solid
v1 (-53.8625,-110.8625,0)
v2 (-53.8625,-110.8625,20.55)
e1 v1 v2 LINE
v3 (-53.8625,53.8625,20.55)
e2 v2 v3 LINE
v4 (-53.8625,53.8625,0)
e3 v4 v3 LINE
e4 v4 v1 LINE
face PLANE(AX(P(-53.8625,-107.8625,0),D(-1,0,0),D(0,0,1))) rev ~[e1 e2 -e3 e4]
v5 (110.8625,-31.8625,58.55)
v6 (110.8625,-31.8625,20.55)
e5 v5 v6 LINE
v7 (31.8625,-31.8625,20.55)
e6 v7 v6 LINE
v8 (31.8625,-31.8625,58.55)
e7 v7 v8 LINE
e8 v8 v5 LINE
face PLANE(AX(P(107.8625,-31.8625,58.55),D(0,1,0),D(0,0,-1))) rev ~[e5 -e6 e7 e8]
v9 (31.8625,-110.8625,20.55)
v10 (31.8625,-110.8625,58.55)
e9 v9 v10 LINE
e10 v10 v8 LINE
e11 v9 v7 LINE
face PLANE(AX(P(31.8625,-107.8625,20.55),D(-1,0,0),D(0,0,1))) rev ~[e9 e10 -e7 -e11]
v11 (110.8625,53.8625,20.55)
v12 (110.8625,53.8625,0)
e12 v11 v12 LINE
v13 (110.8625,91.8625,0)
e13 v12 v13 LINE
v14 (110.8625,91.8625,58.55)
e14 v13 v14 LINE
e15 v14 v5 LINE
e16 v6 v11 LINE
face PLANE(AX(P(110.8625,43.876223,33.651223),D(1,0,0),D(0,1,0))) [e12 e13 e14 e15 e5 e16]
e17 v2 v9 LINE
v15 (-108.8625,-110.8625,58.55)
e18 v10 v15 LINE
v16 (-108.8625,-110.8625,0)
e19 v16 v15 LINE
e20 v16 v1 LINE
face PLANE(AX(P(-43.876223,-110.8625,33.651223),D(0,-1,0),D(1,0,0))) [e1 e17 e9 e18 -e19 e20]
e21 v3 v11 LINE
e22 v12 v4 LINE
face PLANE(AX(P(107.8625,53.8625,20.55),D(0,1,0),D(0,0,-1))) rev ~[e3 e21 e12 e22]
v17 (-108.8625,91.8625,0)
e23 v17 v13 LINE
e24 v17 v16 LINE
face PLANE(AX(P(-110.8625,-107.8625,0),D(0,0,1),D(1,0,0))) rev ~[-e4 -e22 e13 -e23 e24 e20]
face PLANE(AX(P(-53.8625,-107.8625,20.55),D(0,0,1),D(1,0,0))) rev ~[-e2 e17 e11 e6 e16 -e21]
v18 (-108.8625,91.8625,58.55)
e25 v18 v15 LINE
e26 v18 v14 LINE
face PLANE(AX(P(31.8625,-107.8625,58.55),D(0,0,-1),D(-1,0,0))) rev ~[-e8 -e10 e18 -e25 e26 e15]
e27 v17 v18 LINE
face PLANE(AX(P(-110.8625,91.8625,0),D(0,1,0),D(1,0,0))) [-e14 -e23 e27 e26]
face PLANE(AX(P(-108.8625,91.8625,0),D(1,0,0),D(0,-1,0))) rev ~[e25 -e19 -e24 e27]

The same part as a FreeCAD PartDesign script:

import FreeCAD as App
import Part
import Sketcher
Q = App.Units.Quantity

doc = App.newDocument("Part")
body = doc.addObject("PartDesign::Body", "Body")

sketch1 = body.newObject("Sketcher::SketchObject", "Sketch")
sketch1.AttachmentSupport = (doc.getObject("XY_Plane"), [""])
sketch1.MapMode = "FlatFace"
sketch1.addGeometry(Part.LineSegment(App.Vector(-53.8625, 53.8625, 0), App.Vector(107.8625, 53.8625, 0)), False)
sketch1.addGeometry(Part.LineSegment(App.Vector(107.8625, 53.8625, 0), App.Vector(107.8625, 107.8625, 0)), False)
sketch1.addGeometry(Part.LineSegment(App.Vector(107.8625, 107.8625, 0), App.Vector(-107.8625, 107.8625, 0)), False)
sketch1.addGeometry(Part.LineSegment(App.Vector(-107.8625, 107.8625, 0), App.Vector(-107.8625, -107.8625, 0)), False)
sketch1.addGeometry(Part.LineSegment(App.Vector(-107.8625, -107.8625, 0), App.Vector(-53.8625, -107.8625, 0)), False)
sketch1.addGeometry(Part.LineSegment(App.Vector(-53.8625, -107.8625, 0), App.Vector(-53.8625, 53.8625, 0)), False)
sketch1.addConstraint(Sketcher.Constraint("Coincident", 0, 2, 1, 1))
sketch1.addConstraint(Sketcher.Constraint("Coincident", 1, 2, 2, 1))
sketch1.addConstraint(Sketcher.Constraint("Coincident", 2, 2, 3, 1))
sketch1.addConstraint(Sketcher.Constraint("Coincident", 3, 2, 4, 1))
sketch1.addConstraint(Sketcher.Constraint("Coincident", 4, 2, 5, 1))
sketch1.addConstraint(Sketcher.Constraint("Coincident", 5, 2, 0, 1))
sketch1.addConstraint(Sketcher.Constraint("Horizontal", 0))
sketch1.addConstraint(Sketcher.Constraint("Vertical", 1))
sketch1.addConstraint(Sketcher.Constraint("Horizontal", 2))
sketch1.addConstraint(Sketcher.Constraint("Vertical", 3))
sketch1.addConstraint(Sketcher.Constraint("Horizontal", 4))
sketch1.addConstraint(Sketcher.Constraint("Vertical", 5))
sketch1.addConstraint(Sketcher.Constraint("Symmetric", 1, 2, 3, 2, -1, 1))
sketch1.addConstraint(Sketcher.Constraint("Equal", 4, 1))
sketch1.addConstraint(Sketcher.Constraint("Equal", 2, 3))
sketch1.addConstraint(Sketcher.Constraint("DistanceX", 4, 1, 4, 2, Q("54 mm")))
sketch1.addConstraint(Sketcher.Constraint("DistanceX", 0, 1, 0, 2, Q("161.725 mm")))
pad1 = body.newObject("PartDesign::Pad", "Pad")
pad1.Profile = sketch1
pad1.Length = 20.55

sketch2 = body.newObject("Sketcher::SketchObject", "Sketch001")
sketch2.AttachmentSupport = (doc.getObject("XY_Plane"), [""])
sketch2.MapMode = "FlatFace"
sketch2.AttachmentOffset = App.Placement(App.Vector(0, 0, 20.55), App.Rotation())
sketch2.addGeometry(Part.LineSegment(App.Vector(-107.8625, 107.8625, 0), App.Vector(-107.8625, -107.8625, 0)), False)
sketch2.addGeometry(Part.LineSegment(App.Vector(-107.8625, -107.8625, 0), App.Vector(107.8625, -107.8625, 0)), False)
sketch2.addGeometry(Part.LineSegment(App.Vector(107.8625, -107.8625, 0), App.Vector(107.8625, 107.8625, 0)), False)
sketch2.addGeometry(Part.LineSegment(App.Vector(107.8625, 107.8625, 0), App.Vector(-107.8625, 107.8625, 0)), False)
sketch2.addConstraint(Sketcher.Constraint("Coincident", 0, 2, 1, 1))
sketch2.addConstraint(Sketcher.Constraint("Coincident", 1, 2, 2, 1))
sketch2.addConstraint(Sketcher.Constraint("Coincident", 2, 2, 3, 1))
sketch2.addConstraint(Sketcher.Constraint("Coincident", 3, 2, 0, 1))
sketch2.addConstraint(Sketcher.Constraint("Vertical", 0))
sketch2.addConstraint(Sketcher.Constraint("Horizontal", 1))
sketch2.addConstraint(Sketcher.Constraint("Vertical", 2))
sketch2.addConstraint(Sketcher.Constraint("Horizontal", 3))
sketch2.addConstraint(Sketcher.Constraint("Symmetric", 0, 2, 2, 2, -1, 1))
sketch2.addConstraint(Sketcher.Constraint("Equal", 3, 0))
sketch2.addConstraint(Sketcher.Constraint("DistanceX", 1, 1, 1, 2, Q("215.725 mm")))
pad2 = body.newObject("PartDesign::Pad", "Pad001")
pad2.Profile = sketch2
pad2.Length = 38

sketch3 = body.newObject("Sketcher::SketchObject", "Sketch002")
sketch3.AttachmentSupport = (doc.getObject("XY_Plane"), [""])
sketch3.MapMode = "FlatFace"
sketch3.AttachmentOffset = App.Placement(App.Vector(0, 0, 58.55), App.Rotation())
sketch3.addGeometry(Part.LineSegment(App.Vector(-110.8625, -107.8625, 0), App.Vector(-107.8625, -107.8625, 0)), False)
sketch3.addGeometry(Part.LineSegment(App.Vector(-107.8625, -107.8625, 0), App.Vector(-107.8625, 107.8625, 0)), False)
sketch3.addGeometry(Part.LineSegment(App.Vector(-107.8625, 107.8625, 0), App.Vector(107.8625, 107.8625, 0)), False)
sketch3.addGeometry(Part.LineSegment(App.Vector(107.8625, 107.8625, 0), App.Vector(107.8625, 110.8625, 0)), False)
sketch3.addGeometry(Part.LineSegment(App.Vector(107.8625, 110.8625, 0), App.Vector(-110.8625, 110.8625, 0)), False)
sketch3.addGeometry(Part.LineSegment(App.Vector(-110.8625, 110.8625, 0), App.Vector(-110.8625, -107.8625, 0)), False)
sketch3.addConstraint(Sketcher.Constraint("Coincident", 0, 2, 1, 1))
sketch3.addConstraint(Sketcher.Constraint("Coincident", 1, 2, 2, 1))
sketch3.addConstraint(Sketcher.Constraint("Coincident", 2, 2, 3, 1))
sketch3.addConstraint(Sketcher.Constraint("Coincident", 3, 2, 4, 1))
sketch3.addConstraint(Sketcher.Constraint("Coincident", 4, 2, 5, 1))
sketch3.addConstraint(Sketcher.Constraint("Coincident", 5, 2, 0, 1))
sketch3.addConstraint(Sketcher.Constraint("Horizontal", 0))
sketch3.addConstraint(Sketcher.Constraint("Vertical", 1))
sketch3.addConstraint(Sketcher.Constraint("Horizontal", 2))
sketch3.addConstraint(Sketcher.Constraint("Vertical", 3))
sketch3.addConstraint(Sketcher.Constraint("Horizontal", 4))
sketch3.addConstraint(Sketcher.Constraint("Vertical", 5))
sketch3.addConstraint(Sketcher.Constraint("Symmetric", 0, 2, 2, 2, -1, 1))
sketch3.addConstraint(Sketcher.Constraint("Equal", 2, 1))
sketch3.addConstraint(Sketcher.Constraint("Equal", 0, 3))
sketch3.addConstraint(Sketcher.Constraint("DistanceX", 0, 1, 0, 2, Q("3 mm")))
sketch3.addConstraint(Sketcher.Constraint("DistanceX", 2, 1, 2, 2, Q("215.725 mm")))
pad3 = body.newObject("PartDesign::Pad", "Pad002")
pad3.Profile = sketch3
pad3.Type = "UpToLast"
pad3.Reversed = True

sketch4 = body.newObject("Sketcher::SketchObject", "Sketch003")
sketch4.AttachmentSupport = (doc.getObject("XY_Plane"), [""])
sketch4.MapMode = "FlatFace"
sketch4.AttachmentOffset = App.Placement(App.Vector(0, 0, 20.55), App.Rotation())
sketch4.addGeometry(Part.LineSegment(App.Vector(31.8625, -107.8625, 0), App.Vector(31.8625, -31.8625, 0)), False)
sketch4.addGeometry(Part.LineSegment(App.Vector(31.8625, -31.8625, 0), App.Vector(107.8625, -31.8625, 0)), False)
sketch4.addGeometry(Part.LineSegment(App.Vector(107.8625, -31.8625, 0), App.Vector(107.8625, -107.8625, 0)), False)
sketch4.addGeometry(Part.LineSegment(App.Vector(107.8625, -107.8625, 0), App.Vector(31.8625, -107.8625, 0)), False)
sketch4.addConstraint(Sketcher.Constraint("Coincident", 0, 2, 1, 1))
sketch4.addConstraint(Sketcher.Constraint("Coincident", 1, 2, 2, 1))
sketch4.addConstraint(Sketcher.Constraint("Coincident", 2, 2, 3, 1))
sketch4.addConstraint(Sketcher.Constraint("Coincident", 3, 2, 0, 1))
sketch4.addConstraint(Sketcher.Constraint("Vertical", 0))
sketch4.addConstraint(Sketcher.Constraint("Horizontal", 1))
sketch4.addConstraint(Sketcher.Constraint("Vertical", 2))
sketch4.addConstraint(Sketcher.Constraint("Horizontal", 3))
sketch4.addConstraint(Sketcher.Constraint("Equal", 3, 0))
sketch4.addConstraint(Sketcher.Constraint("DistanceX", 1, 1, 1, 2, Q("76 mm")))
sketch4.addConstraint(Sketcher.Constraint("DistanceX", -1, 1, 0, 2, Q("31.8625 mm")))
sketch4.addConstraint(Sketcher.Constraint("DistanceY", 0, 2, -1, 1, Q("31.8625 mm")))
pocket1 = body.newObject("PartDesign::Pocket", "Pocket")
pocket1.Profile = sketch4
pocket1.Type = "ThroughAll"
pocket1.Reversed = True

sketch5 = body.newObject("Sketcher::SketchObject", "Sketch004")
sketch5.AttachmentSupport = (doc.getObject("YZ_Plane"), [""])
sketch5.MapMode = "FlatFace"
sketch5.AttachmentOffset = App.Placement(App.Vector(0, 0, 107.8625), App.Rotation())
sketch5.addGeometry(Part.LineSegment(App.Vector(110.8625, 58.55, 0), App.Vector(-31.8625, 58.55, 0)), False)
sketch5.addGeometry(Part.LineSegment(App.Vector(-31.8625, 58.55, 0), App.Vector(-31.8625, 20.55, 0)), False)
sketch5.addGeometry(Part.LineSegment(App.Vector(-31.8625, 20.55, 0), App.Vector(53.8625, 20.55, 0)), False)
sketch5.addGeometry(Part.LineSegment(App.Vector(53.8625, 20.55, 0), App.Vector(53.8625, 0, 0)), False)
sketch5.addGeometry(Part.LineSegment(App.Vector(53.8625, 0, 0), App.Vector(110.8625, 0, 0)), False)
sketch5.addGeometry(Part.LineSegment(App.Vector(110.8625, 0, 0), App.Vector(110.8625, 58.55, 0)), False)
sketch5.addConstraint(Sketcher.Constraint("Coincident", 0, 2, 1, 1))
sketch5.addConstraint(Sketcher.Constraint("Coincident", 1, 2, 2, 1))
sketch5.addConstraint(Sketcher.Constraint("Coincident", 2, 2, 3, 1))
sketch5.addConstraint(Sketcher.Constraint("Coincident", 3, 2, 4, 1))
sketch5.addConstraint(Sketcher.Constraint("Coincident", 4, 2, 5, 1))
sketch5.addConstraint(Sketcher.Constraint("Coincident", 5, 2, 0, 1))
sketch5.addConstraint(Sketcher.Constraint("Horizontal", 0))
sketch5.addConstraint(Sketcher.Constraint("Vertical", 1))
sketch5.addConstraint(Sketcher.Constraint("Horizontal", 2))
sketch5.addConstraint(Sketcher.Constraint("Vertical", 3))
sketch5.addConstraint(Sketcher.Constraint("Horizontal", 4))
sketch5.addConstraint(Sketcher.Constraint("Vertical", 5))
sketch5.addConstraint(Sketcher.Constraint("PointOnObject", 3, 2, -1))
sketch5.addConstraint(Sketcher.Constraint("DistanceX", 4, 1, 4, 2, Q("57 mm")))
sketch5.addConstraint(Sketcher.Constraint("DistanceY", 1, 2, 1, 1, Q("38 mm")))
sketch5.addConstraint(Sketcher.Constraint("DistanceY", 3, 2, 3, 1, Q("20.55 mm")))
sketch5.addConstraint(Sketcher.Constraint("DistanceX", 0, 2, 0, 1, Q("142.725 mm")))
sketch5.addConstraint(Sketcher.Constraint("DistanceX", 0, 2, -1, 1, Q("31.8625 mm")))
pad4 = body.newObject("PartDesign::Pad", "Pad003")
pad4.Profile = sketch5
pad4.Length = 3

sketch6 = body.newObject("Sketcher::SketchObject", "Sketch005")
sketch6.AttachmentSupport = (doc.getObject("XZ_Plane"), [""])
sketch6.MapMode = "FlatFace"
sketch6.AttachmentOffset = App.Placement(App.Vector(0, 0, 107.8625), App.Rotation())
sketch6.addGeometry(Part.LineSegment(App.Vector(31.8625, 58.55, 0), App.Vector(-110.8625, 58.55, 0)), False)
sketch6.addGeometry(Part.LineSegment(App.Vector(-110.8625, 58.55, 0), App.Vector(-110.8625, 0, 0)), False)
sketch6.addGeometry(Part.LineSegment(App.Vector(-110.8625, 0, 0), App.Vector(-53.8625, 0, 0)), False)
sketch6.addGeometry(Part.LineSegment(App.Vector(-53.8625, 0, 0), App.Vector(-53.8625, 20.55, 0)), False)
sketch6.addGeometry(Part.LineSegment(App.Vector(-53.8625, 20.55, 0), App.Vector(31.8625, 20.55, 0)), False)
sketch6.addGeometry(Part.LineSegment(App.Vector(31.8625, 20.55, 0), App.Vector(31.8625, 58.55, 0)), False)
sketch6.addConstraint(Sketcher.Constraint("Coincident", 0, 2, 1, 1))
sketch6.addConstraint(Sketcher.Constraint("Coincident", 1, 2, 2, 1))
sketch6.addConstraint(Sketcher.Constraint("Coincident", 2, 2, 3, 1))
sketch6.addConstraint(Sketcher.Constraint("Coincident", 3, 2, 4, 1))
sketch6.addConstraint(Sketcher.Constraint("Coincident", 4, 2, 5, 1))
sketch6.addConstraint(Sketcher.Constraint("Coincident", 5, 2, 0, 1))
sketch6.addConstraint(Sketcher.Constraint("Horizontal", 0))
sketch6.addConstraint(Sketcher.Constraint("Vertical", 1))
sketch6.addConstraint(Sketcher.Constraint("Horizontal", 2))
sketch6.addConstraint(Sketcher.Constraint("Vertical", 3))
sketch6.addConstraint(Sketcher.Constraint("Horizontal", 4))
sketch6.addConstraint(Sketcher.Constraint("Vertical", 5))
sketch6.addConstraint(Sketcher.Constraint("PointOnObject", 1, 2, -1))
sketch6.addConstraint(Sketcher.Constraint("DistanceX", 2, 1, 2, 2, Q("57 mm")))
sketch6.addConstraint(Sketcher.Constraint("DistanceY", 5, 1, 5, 2, Q("38 mm")))
sketch6.addConstraint(Sketcher.Constraint("DistanceY", 1, 2, 1, 1, Q("58.55 mm")))
sketch6.addConstraint(Sketcher.Constraint("DistanceX", 0, 2, 0, 1, Q("142.725 mm")))
sketch6.addConstraint(Sketcher.Constraint("DistanceX", 0, 2, -1, 1, Q("110.8625 mm")))
pad5 = body.newObject("PartDesign::Pad", "Pad004")
pad5.Profile = sketch6
pad5.Length = 3

sketch7 = body.newObject("Sketcher::SketchObject", "Sketch006")
sketch7.AttachmentSupport = (doc.getObject("XY_Plane"), [""])
sketch7.MapMode = "FlatFace"
sketch7.addGeometry(Part.LineSegment(App.Vector(-110.8625, 91.8625, 0), App.Vector(-110.8625, 110.8625, 0)), False)
sketch7.addGeometry(Part.LineSegment(App.Vector(-110.8625, 110.8625, 0), App.Vector(110.8625, 110.8625, 0)), False)
sketch7.addGeometry(Part.LineSegment(App.Vector(110.8625, 110.8625, 0), App.Vector(110.8625, 91.8625, 0)), False)
sketch7.addGeometry(Part.LineSegment(App.Vector(110.8625, 91.8625, 0), App.Vector(-110.8625, 91.8625, 0)), False)
sketch7.addConstraint(Sketcher.Constraint("Coincident", 0, 2, 1, 1))
sketch7.addConstraint(Sketcher.Constraint("Coincident", 1, 2, 2, 1))
sketch7.addConstraint(Sketcher.Constraint("Coincident", 2, 2, 3, 1))
sketch7.addConstraint(Sketcher.Constraint("Coincident", 3, 2, 0, 1))
sketch7.addConstraint(Sketcher.Constraint("Vertical", 0))
sketch7.addConstraint(Sketcher.Constraint("Horizontal", 1))
sketch7.addConstraint(Sketcher.Constraint("Vertical", 2))
sketch7.addConstraint(Sketcher.Constraint("Horizontal", 3))
sketch7.addConstraint(Sketcher.Constraint("DistanceY", 0, 1, 0, 2, Q("19 mm")))
sketch7.addConstraint(Sketcher.Constraint("DistanceX", 1, 1, 1, 2, Q("221.725 mm")))
sketch7.addConstraint(Sketcher.Constraint("DistanceX", 0, 2, -1, 1, Q("110.8625 mm")))
sketch7.addConstraint(Sketcher.Constraint("DistanceY", -1, 1, 0, 2, Q("110.8625 mm")))
pocket2 = body.newObject("PartDesign::Pocket", "Pocket001")
pocket2.Profile = sketch7
pocket2.Type = "ThroughAll"
pocket2.Reversed = True

sketch8 = body.newObject("Sketcher::SketchObject", "Sketch007")
sketch8.AttachmentSupport = (doc.getObject("XY_Plane"), [""])
sketch8.MapMode = "FlatFace"
sketch8.addGeometry(Part.LineSegment(App.Vector(-110.8625, -110.8625, 0), App.Vector(-110.8625, 91.8625, 0)), False)
sketch8.addGeometry(Part.LineSegment(App.Vector(-110.8625, 91.8625, 0), App.Vector(-108.8625, 91.8625, 0)), False)
sketch8.addGeometry(Part.LineSegment(App.Vector(-108.8625, 91.8625, 0), App.Vector(-108.8625, -110.8625, 0)), False)
sketch8.addGeometry(Part.LineSegment(App.Vector(-108.8625, -110.8625, 0), App.Vector(-110.8625, -110.8625, 0)), False)
sketch8.addConstraint(Sketcher.Constraint("Coincident", 0, 2, 1, 1))
sketch8.addConstraint(Sketcher.Constraint("Coincident", 1, 2, 2, 1))
sketch8.addConstraint(Sketcher.Constraint("Coincident", 2, 2, 3, 1))
sketch8.addConstraint(Sketcher.Constraint("Coincident", 3, 2, 0, 1))
sketch8.addConstraint(Sketcher.Constraint("Vertical", 0))
sketch8.addConstraint(Sketcher.Constraint("Horizontal", 1))
sketch8.addConstraint(Sketcher.Constraint("Vertical", 2))
sketch8.addConstraint(Sketcher.Constraint("Horizontal", 3))
sketch8.addConstraint(Sketcher.Constraint("DistanceX", 1, 1, 1, 2, Q("2 mm")))
sketch8.addConstraint(Sketcher.Constraint("DistanceY", 0, 1, 0, 2, Q("202.725 mm")))
sketch8.addConstraint(Sketcher.Constraint("DistanceX", 0, 2, -1, 1, Q("110.8625 mm")))
sketch8.addConstraint(Sketcher.Constraint("DistanceY", -1, 1, 0, 2, Q("91.8625 mm")))
pocket3 = body.newObject("PartDesign::Pocket", "Pocket002")
pocket3.Profile = sketch8
pocket3.Type = "ThroughAll"
pocket3.Reversed = True

doc.recompute()
